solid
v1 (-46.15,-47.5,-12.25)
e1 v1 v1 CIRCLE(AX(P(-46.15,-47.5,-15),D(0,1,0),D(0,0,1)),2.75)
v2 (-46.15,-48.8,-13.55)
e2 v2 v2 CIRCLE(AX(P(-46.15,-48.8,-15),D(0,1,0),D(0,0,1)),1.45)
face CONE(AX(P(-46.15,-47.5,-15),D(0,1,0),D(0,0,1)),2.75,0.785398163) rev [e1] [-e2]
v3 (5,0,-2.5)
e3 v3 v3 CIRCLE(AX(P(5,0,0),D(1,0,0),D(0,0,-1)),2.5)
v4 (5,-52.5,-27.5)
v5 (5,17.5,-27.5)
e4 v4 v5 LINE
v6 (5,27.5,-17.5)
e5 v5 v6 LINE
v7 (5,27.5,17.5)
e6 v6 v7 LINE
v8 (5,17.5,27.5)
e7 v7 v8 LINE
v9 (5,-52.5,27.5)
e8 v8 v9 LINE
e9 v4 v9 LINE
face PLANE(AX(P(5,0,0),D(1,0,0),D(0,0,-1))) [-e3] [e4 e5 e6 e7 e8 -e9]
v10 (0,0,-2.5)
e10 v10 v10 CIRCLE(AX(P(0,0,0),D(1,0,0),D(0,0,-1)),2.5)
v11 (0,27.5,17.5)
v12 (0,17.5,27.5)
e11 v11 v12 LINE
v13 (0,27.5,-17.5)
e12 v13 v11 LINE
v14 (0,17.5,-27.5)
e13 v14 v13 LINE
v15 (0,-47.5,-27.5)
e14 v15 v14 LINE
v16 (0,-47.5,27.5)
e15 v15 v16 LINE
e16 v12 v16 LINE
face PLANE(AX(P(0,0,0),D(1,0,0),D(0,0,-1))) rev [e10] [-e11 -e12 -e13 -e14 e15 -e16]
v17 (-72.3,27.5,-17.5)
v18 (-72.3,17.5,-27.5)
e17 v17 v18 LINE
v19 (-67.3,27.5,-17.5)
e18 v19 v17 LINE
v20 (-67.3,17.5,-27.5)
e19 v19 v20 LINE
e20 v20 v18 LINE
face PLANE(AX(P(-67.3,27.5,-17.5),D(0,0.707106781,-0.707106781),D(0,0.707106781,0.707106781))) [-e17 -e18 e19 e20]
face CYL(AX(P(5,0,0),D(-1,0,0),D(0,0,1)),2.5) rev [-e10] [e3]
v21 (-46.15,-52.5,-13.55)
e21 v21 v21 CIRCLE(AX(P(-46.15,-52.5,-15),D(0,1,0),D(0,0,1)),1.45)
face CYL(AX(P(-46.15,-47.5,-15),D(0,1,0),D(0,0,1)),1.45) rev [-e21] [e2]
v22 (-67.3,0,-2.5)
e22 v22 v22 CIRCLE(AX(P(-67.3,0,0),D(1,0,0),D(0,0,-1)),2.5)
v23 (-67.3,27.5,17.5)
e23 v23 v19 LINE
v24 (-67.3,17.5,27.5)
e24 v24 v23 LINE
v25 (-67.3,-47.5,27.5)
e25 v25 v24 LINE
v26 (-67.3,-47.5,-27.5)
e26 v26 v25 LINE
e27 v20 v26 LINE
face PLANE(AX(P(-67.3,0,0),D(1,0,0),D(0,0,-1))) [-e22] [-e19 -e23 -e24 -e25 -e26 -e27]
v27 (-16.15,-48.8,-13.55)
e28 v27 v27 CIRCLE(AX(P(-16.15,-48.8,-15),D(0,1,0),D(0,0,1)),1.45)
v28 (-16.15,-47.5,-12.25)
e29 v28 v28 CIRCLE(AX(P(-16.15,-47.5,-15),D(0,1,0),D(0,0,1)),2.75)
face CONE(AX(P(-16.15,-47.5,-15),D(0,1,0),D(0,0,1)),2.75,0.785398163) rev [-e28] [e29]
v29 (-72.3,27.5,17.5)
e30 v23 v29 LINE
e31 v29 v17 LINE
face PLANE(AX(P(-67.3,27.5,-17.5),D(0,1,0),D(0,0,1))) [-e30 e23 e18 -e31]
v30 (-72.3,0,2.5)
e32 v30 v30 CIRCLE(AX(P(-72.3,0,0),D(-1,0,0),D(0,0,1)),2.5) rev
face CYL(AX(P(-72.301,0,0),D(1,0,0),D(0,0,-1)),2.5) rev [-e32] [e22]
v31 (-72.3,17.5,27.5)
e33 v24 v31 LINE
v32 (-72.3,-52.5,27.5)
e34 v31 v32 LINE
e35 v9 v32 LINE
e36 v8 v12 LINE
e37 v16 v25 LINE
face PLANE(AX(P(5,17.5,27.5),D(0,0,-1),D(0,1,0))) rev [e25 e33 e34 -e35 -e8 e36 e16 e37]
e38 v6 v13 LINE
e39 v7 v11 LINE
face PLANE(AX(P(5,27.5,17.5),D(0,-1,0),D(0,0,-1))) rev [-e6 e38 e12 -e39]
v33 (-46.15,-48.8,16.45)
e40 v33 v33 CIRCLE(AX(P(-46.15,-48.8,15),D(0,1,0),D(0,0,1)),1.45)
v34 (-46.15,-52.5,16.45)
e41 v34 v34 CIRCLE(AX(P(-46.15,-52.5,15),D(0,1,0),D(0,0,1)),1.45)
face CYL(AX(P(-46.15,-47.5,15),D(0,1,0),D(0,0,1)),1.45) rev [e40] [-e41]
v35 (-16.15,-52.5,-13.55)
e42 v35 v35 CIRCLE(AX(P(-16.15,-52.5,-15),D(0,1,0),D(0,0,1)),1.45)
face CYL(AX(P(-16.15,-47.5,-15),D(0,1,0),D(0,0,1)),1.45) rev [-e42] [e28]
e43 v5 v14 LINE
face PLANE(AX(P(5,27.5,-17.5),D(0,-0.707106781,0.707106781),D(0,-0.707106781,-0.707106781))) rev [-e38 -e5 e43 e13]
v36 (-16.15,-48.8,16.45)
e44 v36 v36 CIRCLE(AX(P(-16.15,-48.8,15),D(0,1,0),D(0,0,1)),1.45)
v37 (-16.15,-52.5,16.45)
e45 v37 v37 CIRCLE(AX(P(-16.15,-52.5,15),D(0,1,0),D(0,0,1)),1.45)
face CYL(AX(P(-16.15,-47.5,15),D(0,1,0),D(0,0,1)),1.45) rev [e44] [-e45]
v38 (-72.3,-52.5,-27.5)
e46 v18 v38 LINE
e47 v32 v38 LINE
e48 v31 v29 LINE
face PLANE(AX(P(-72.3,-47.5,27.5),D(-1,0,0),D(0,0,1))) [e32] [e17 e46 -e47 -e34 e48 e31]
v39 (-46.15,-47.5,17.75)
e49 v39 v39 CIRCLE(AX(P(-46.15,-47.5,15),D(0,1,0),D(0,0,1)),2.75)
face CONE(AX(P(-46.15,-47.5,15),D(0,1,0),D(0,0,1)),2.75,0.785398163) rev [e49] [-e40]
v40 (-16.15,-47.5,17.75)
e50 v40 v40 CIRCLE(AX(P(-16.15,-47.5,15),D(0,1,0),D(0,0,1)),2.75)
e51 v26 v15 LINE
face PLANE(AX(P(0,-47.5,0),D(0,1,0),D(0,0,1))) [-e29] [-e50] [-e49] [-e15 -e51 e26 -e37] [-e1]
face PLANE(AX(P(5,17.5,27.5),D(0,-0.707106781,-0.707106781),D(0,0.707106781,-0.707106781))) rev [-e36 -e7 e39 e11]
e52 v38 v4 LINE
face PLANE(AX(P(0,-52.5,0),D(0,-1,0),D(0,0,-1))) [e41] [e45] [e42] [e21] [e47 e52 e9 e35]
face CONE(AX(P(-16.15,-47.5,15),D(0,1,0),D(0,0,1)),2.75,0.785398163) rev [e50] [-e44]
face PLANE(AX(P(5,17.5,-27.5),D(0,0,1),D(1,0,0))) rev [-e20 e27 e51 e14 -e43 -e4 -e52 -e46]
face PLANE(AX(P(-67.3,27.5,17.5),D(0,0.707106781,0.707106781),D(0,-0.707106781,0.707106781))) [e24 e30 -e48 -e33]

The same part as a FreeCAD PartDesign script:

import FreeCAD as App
import Part
import Sketcher

V = App.Vector


def add_polygon(sketch, points):
    """Adds a closed chain of lines whose ends are joined by coincident constraints."""
    first, n = sketch.GeometryCount, len(points)
    for a, b in zip(points, points[1:] + points[:1]):
        sketch.addGeometry(Part.LineSegment(App.Vector(*a, 0), App.Vector(*b, 0)), False)
    for i in range(n):
        sketch.addConstraint(Sketcher.Constraint("Coincident", first + i, 2, first + (i + 1) % n, 1))

doc = App.newDocument("Part")
params = doc.addObject("Spreadsheet::Sheet", "Params")
for row, (alias, value) in enumerate([
    ("sketch1_diameter", "5 mm"),
    ("sketch1_width", "45 mm"),
    ("sketch1_height", "55 mm"),
    ("sketch1_height2", "35 mm"),
    ("pad1_length", "5 mm"),
    ("sketch2_width", "5 mm"),
    ("sketch2_height", "55 mm"),
    ("pad2_length", "25 mm"),
    ("sketch3_height", "55 mm"),
    ("sketch3_width", "72.3 mm"),
    ("pad3_length", "5 mm"),
    ("sketch4_width", "65 mm"),
    ("sketch4_height", "55 mm"),
    ("sketch4_height2", "35 mm"),
    ("pad4_length", "5 mm"),
    ("sketch5_diameter", "5 mm"),
    ("sketch6_diameter", "2.9 mm"),
    ("hole_diameter", "2.9 mm"),
    ("hole_csink_diameter", "5.5 mm"),
], start=1):
    params.set(f"A{row}", alias)
    params.set(f"B{row}", "=" + value)
    params.setAlias(f"B{row}", alias)

body = doc.addObject("PartDesign::Body", "Body")

sketch1 = body.newObject("Sketcher::SketchObject", "Sketch")
sketch1.AttachmentSupport = (doc.getObject("YZ_Plane"), [""])
sketch1.MapMode = "FlatFace"
add_polygon(sketch1, [(27.5, 17.5), (17.5, 27.5), (-27.5, 27.5), (-27.5, -27.5), (17.5, -27.5), (27.5, -17.5)])
sketch1.addGeometry(Part.Circle(V(0, 0, 0), V(0, 0, 1), 2.5), False)
sketch1.addConstraint(Sketcher.Constraint("Horizontal", 1))
sketch1.addConstraint(Sketcher.Constraint("Vertical", 2))
sketch1.addConstraint(Sketcher.Constraint("Horizontal", 3))
sketch1.addConstraint(Sketcher.Constraint("Vertical", 5))
sketch1.addConstraint(Sketcher.Constraint("Coincident", 6, 3, -1, 1))
sketch1.addConstraint(Sketcher.Constraint("Symmetric", 0, 2, 3, 2, -1))
sketch1.addConstraint(Sketcher.Constraint("Perpendicular", 0, 4))
sketch1.addConstraint(Sketcher.Constraint("Equal", 0, 4))
sketch1.addConstraint(Sketcher.Constraint("Diameter", 6, 5.0))
sketch1.addConstraint(Sketcher.Constraint("DistanceX", 1, 2, 1, 1, 45.0))
sketch1.addConstraint(Sketcher.Constraint("DistanceY", 2, 2, 2, 1, 55.0))
sketch1.addConstraint(Sketcher.Constraint("DistanceY", 5, 1, 5, 2, 35.0))
sketch1.addConstraint(Sketcher.Constraint("DistanceX", -1, 1, 0, 2, 17.5))
sketch1.setExpression("Constraints[14]", "Params.sketch1_diameter")
sketch1.setExpression("Constraints[15]", "Params.sketch1_width")
sketch1.setExpression("Constraints[16]", "Params.sketch1_height")
sketch1.setExpression("Constraints[17]", "Params.sketch1_height2")
pad1 = body.newObject("PartDesign::Pad", "Pad")
pad1.Profile = sketch1
pad1.setExpression("Length", "Params.pad1_length")

sketch2 = body.newObject("Sketcher::SketchObject", "Sketch001")
sketch2.AttachmentSupport = (doc.getObject("XZ_Plane"), [""])
sketch2.MapMode = "FlatFace"
sketch2.AttachmentOffset = App.Placement(V(0, 0, 27.5), App.Rotation())
add_polygon(sketch2, [(0, 28), (0, -28), (5, -28), (5, 28)])
sketch2.addConstraint(Sketcher.Constraint("Vertical", 0))
sketch2.addConstraint(Sketcher.Constraint("Horizontal", 1))
sketch2.addConstraint(Sketcher.Constraint("Vertical", 2))
sketch2.addConstraint(Sketcher.Constraint("Horizontal", 3))
sketch2.addConstraint(Sketcher.Constraint("Symmetric", 0, 2, 3, 2, -1, 1))
sketch2.addConstraint(Sketcher.Constraint("DistanceX", 1, 1, 1, 2, 5.0))
sketch2.addConstraint(Sketcher.Constraint("DistanceY", 0, 2, 0, 1, 55.0))
sketch2.setExpression("Constraints[9]", "Params.sketch2_width")
sketch2.setExpression("Constraints[10]", "Params.sketch2_height")
pad2 = body.newObject("PartDesign::Pad", "Pad001")
pad2.Profile = sketch2
pad2.setExpression("Length", "Params.pad2_length")

sketch3 = body.newObject("Sketcher::SketchObject", "Sketch002")
sketch3.AttachmentSupport = (doc.getObject("XZ_Plane"), [""])
sketch3.MapMode = "FlatFace"
sketch3.AttachmentOffset = App.Placement(V(0, 0, 52.5), App.Rotation())
add_polygon(sketch3, [(-72, 28), (-72, -28), (0, -28), (0, 28)])
sketch3.addConstraint(Sketcher.Constraint("Vertical", 0))
sketch3.addConstraint(Sketcher.Constraint("Horizontal", 1))
sketch3.addConstraint(Sketcher.Constraint("Vertical", 2))
sketch3.addConstraint(Sketcher.Constraint("Horizontal", 3))
sketch3.addConstraint(Sketcher.Constraint("Symmetric", 1, 2, 2, 2, -1, 1))
sketch3.addConstraint(Sketcher.Constraint("DistanceY", 0, 2, 0, 1, 55.0))
sketch3.addConstraint(Sketcher.Constraint("DistanceX", 1, 1, 1, 2, 72.3))
sketch3.setExpression("Constraints[9]", "Params.sketch3_height")
sketch3.setExpression("Constraints[10]", "Params.sketch3_width")
pad3 = body.newObject("PartDesign::Pad", "Pad002")
pad3.Profile = sketch3
pad3.setExpression("Length", "Params.pad3_length")
pad3.Reversed = True

sketch4 = body.newObject("Sketcher::SketchObject", "Sketch003")
sketch4.AttachmentSupport = (doc.getObject("YZ_Plane"), [""])
sketch4.MapMode = "FlatFace"
sketch4.AttachmentOffset = App.Placement(V(0, 0, -72.3), App.Rotation())
add_polygon(sketch4, [(28, -18), (18, -28), (-48, -28), (-48, 28), (18, 28), (28, 18)])
sketch4.addConstraint(Sketcher.Constraint("Horizontal", 1))
sketch4.addConstraint(Sketcher.Constraint("Vertical", 2))
sketch4.addConstraint(Sketcher.Constraint("Horizontal", 3))
sketch4.addConstraint(Sketcher.Constraint("Vertical", 5))
sketch4.addConstraint(Sketcher.Constraint("Symmetric", 0, 2, 3, 2, -1))
sketch4.addConstraint(Sketcher.Constraint("Perpendicular", 0, 4))
sketch4.addConstraint(Sketcher.Constraint("Equal", 0, 4))
sketch4.addConstraint(Sketcher.Constraint("DistanceX", 1, 2, 1, 1, 65.0))
sketch4.addConstraint(Sketcher.Constraint("DistanceY", 2, 1, 2, 2, 55.0))
sketch4.addConstraint(Sketcher.Constraint("DistanceY", 5, 2, 5, 1, 35.0))
sketch4.addConstraint(Sketcher.Constraint("DistanceX", -1, 1, 0, 2, 17.5))
sketch4.setExpression("Constraints[13]", "Params.sketch4_width")
sketch4.setExpression("Constraints[14]", "Params.sketch4_height")
sketch4.setExpression("Constraints[15]", "Params.sketch4_height2")
pad4 = body.newObject("PartDesign::Pad", "Pad003")
pad4.Profile = sketch4
pad4.setExpression("Length", "Params.pad4_length")

sketch5 = body.newObject("Sketcher::SketchObject", "Sketch004")
sketch5.AttachmentSupport = (doc.getObject("YZ_Plane"), [""])
sketch5.MapMode = "FlatFace"
sketch5.AttachmentOffset = App.Placement(V(0, 0, -67.3), App.Rotation())
sketch5.addGeometry(Part.Circle(V(0, 0, 0), V(0, 0, 1), 2.5), False)
sketch5.addConstraint(Sketcher.Constraint("Coincident", 0, 3, -1, 1))
sketch5.addConstraint(Sketcher.Constraint("Diameter", 0, 5.0))
sketch5.setExpression("Constraints[1]", "Params.sketch5_diameter")
pocket1 = body.newObject("PartDesign::Pocket", "Pocket")
pocket1.Profile = sketch5
pocket1.Type = "UpToFirst"

sketch6 = body.newObject("Sketcher::SketchObject", "Sketch005")
sketch6.AttachmentSupport = (doc.getObject("XZ_Plane"), [""])
sketch6.MapMode = "FlatFace"
sketch6.AttachmentOffset = App.Placement(V(0, 0, 47.5), App.Rotation())
sketch6.addGeometry(Part.Circle(V(-16.1, -15, 0), V(0, 0, 1), 1.4), False)
sketch6.addGeometry(Part.Circle(V(-16.1, 15, 0), V(0, 0, 1), 1.4), False)
sketch6.addGeometry(Part.Circle(V(-46.1, 15, 0), V(0, 0, 1), 1.4), False)
sketch6.addGeometry(Part.Circle(V(-46.1, -15, 0), V(0, 0, 1), 1.4), False)
sketch6.addConstraint(Sketcher.Constraint("Equal", 0, 1))
sketch6.addConstraint(Sketcher.Constraint("Equal", 1, 2))
sketch6.addConstraint(Sketcher.Constraint("Equal", 2, 3))
sketch6.addConstraint(Sketcher.Constraint("Symmetric", 0, 3, 1, 3, -1))
sketch6.addConstraint(Sketcher.Constraint("Symmetric", 2, 3, 3, 3, -1))
sketch6.addConstraint(Sketcher.Constraint("Horizontal", 1, 3, 2, 3))
sketch6.addConstraint(Sketcher.Constraint("Diameter", 0, 2.9))
sketch6.addConstraint(Sketcher.Constraint("DistanceY", 0, 3, -1, 1, 15.0))
sketch6.addConstraint(Sketcher.Constraint("DistanceX", 2, 3, 1, 3, 30.0))
sketch6.addConstraint(Sketcher.Constraint("DistanceX", 0, 3, -1, 1, 16.15))
sketch6.setExpression("Constraints[6]", "Params.sketch6_diameter")
doc.recompute()
hole = body.newObject("PartDesign::Hole", "Hole")
hole.Profile = sketch6
hole.ThreadType = "None"
hole.setExpression("Diameter", "Params.hole_diameter")
hole.DepthType = "ThroughAll"
hole.HoleCutType = "Countersink"
hole.setExpression("HoleCutDiameter", "Params.hole_csink_diameter")
hole.HoleCutCountersinkAngle = 90
hole.Reversed = True

doc.recompute()
